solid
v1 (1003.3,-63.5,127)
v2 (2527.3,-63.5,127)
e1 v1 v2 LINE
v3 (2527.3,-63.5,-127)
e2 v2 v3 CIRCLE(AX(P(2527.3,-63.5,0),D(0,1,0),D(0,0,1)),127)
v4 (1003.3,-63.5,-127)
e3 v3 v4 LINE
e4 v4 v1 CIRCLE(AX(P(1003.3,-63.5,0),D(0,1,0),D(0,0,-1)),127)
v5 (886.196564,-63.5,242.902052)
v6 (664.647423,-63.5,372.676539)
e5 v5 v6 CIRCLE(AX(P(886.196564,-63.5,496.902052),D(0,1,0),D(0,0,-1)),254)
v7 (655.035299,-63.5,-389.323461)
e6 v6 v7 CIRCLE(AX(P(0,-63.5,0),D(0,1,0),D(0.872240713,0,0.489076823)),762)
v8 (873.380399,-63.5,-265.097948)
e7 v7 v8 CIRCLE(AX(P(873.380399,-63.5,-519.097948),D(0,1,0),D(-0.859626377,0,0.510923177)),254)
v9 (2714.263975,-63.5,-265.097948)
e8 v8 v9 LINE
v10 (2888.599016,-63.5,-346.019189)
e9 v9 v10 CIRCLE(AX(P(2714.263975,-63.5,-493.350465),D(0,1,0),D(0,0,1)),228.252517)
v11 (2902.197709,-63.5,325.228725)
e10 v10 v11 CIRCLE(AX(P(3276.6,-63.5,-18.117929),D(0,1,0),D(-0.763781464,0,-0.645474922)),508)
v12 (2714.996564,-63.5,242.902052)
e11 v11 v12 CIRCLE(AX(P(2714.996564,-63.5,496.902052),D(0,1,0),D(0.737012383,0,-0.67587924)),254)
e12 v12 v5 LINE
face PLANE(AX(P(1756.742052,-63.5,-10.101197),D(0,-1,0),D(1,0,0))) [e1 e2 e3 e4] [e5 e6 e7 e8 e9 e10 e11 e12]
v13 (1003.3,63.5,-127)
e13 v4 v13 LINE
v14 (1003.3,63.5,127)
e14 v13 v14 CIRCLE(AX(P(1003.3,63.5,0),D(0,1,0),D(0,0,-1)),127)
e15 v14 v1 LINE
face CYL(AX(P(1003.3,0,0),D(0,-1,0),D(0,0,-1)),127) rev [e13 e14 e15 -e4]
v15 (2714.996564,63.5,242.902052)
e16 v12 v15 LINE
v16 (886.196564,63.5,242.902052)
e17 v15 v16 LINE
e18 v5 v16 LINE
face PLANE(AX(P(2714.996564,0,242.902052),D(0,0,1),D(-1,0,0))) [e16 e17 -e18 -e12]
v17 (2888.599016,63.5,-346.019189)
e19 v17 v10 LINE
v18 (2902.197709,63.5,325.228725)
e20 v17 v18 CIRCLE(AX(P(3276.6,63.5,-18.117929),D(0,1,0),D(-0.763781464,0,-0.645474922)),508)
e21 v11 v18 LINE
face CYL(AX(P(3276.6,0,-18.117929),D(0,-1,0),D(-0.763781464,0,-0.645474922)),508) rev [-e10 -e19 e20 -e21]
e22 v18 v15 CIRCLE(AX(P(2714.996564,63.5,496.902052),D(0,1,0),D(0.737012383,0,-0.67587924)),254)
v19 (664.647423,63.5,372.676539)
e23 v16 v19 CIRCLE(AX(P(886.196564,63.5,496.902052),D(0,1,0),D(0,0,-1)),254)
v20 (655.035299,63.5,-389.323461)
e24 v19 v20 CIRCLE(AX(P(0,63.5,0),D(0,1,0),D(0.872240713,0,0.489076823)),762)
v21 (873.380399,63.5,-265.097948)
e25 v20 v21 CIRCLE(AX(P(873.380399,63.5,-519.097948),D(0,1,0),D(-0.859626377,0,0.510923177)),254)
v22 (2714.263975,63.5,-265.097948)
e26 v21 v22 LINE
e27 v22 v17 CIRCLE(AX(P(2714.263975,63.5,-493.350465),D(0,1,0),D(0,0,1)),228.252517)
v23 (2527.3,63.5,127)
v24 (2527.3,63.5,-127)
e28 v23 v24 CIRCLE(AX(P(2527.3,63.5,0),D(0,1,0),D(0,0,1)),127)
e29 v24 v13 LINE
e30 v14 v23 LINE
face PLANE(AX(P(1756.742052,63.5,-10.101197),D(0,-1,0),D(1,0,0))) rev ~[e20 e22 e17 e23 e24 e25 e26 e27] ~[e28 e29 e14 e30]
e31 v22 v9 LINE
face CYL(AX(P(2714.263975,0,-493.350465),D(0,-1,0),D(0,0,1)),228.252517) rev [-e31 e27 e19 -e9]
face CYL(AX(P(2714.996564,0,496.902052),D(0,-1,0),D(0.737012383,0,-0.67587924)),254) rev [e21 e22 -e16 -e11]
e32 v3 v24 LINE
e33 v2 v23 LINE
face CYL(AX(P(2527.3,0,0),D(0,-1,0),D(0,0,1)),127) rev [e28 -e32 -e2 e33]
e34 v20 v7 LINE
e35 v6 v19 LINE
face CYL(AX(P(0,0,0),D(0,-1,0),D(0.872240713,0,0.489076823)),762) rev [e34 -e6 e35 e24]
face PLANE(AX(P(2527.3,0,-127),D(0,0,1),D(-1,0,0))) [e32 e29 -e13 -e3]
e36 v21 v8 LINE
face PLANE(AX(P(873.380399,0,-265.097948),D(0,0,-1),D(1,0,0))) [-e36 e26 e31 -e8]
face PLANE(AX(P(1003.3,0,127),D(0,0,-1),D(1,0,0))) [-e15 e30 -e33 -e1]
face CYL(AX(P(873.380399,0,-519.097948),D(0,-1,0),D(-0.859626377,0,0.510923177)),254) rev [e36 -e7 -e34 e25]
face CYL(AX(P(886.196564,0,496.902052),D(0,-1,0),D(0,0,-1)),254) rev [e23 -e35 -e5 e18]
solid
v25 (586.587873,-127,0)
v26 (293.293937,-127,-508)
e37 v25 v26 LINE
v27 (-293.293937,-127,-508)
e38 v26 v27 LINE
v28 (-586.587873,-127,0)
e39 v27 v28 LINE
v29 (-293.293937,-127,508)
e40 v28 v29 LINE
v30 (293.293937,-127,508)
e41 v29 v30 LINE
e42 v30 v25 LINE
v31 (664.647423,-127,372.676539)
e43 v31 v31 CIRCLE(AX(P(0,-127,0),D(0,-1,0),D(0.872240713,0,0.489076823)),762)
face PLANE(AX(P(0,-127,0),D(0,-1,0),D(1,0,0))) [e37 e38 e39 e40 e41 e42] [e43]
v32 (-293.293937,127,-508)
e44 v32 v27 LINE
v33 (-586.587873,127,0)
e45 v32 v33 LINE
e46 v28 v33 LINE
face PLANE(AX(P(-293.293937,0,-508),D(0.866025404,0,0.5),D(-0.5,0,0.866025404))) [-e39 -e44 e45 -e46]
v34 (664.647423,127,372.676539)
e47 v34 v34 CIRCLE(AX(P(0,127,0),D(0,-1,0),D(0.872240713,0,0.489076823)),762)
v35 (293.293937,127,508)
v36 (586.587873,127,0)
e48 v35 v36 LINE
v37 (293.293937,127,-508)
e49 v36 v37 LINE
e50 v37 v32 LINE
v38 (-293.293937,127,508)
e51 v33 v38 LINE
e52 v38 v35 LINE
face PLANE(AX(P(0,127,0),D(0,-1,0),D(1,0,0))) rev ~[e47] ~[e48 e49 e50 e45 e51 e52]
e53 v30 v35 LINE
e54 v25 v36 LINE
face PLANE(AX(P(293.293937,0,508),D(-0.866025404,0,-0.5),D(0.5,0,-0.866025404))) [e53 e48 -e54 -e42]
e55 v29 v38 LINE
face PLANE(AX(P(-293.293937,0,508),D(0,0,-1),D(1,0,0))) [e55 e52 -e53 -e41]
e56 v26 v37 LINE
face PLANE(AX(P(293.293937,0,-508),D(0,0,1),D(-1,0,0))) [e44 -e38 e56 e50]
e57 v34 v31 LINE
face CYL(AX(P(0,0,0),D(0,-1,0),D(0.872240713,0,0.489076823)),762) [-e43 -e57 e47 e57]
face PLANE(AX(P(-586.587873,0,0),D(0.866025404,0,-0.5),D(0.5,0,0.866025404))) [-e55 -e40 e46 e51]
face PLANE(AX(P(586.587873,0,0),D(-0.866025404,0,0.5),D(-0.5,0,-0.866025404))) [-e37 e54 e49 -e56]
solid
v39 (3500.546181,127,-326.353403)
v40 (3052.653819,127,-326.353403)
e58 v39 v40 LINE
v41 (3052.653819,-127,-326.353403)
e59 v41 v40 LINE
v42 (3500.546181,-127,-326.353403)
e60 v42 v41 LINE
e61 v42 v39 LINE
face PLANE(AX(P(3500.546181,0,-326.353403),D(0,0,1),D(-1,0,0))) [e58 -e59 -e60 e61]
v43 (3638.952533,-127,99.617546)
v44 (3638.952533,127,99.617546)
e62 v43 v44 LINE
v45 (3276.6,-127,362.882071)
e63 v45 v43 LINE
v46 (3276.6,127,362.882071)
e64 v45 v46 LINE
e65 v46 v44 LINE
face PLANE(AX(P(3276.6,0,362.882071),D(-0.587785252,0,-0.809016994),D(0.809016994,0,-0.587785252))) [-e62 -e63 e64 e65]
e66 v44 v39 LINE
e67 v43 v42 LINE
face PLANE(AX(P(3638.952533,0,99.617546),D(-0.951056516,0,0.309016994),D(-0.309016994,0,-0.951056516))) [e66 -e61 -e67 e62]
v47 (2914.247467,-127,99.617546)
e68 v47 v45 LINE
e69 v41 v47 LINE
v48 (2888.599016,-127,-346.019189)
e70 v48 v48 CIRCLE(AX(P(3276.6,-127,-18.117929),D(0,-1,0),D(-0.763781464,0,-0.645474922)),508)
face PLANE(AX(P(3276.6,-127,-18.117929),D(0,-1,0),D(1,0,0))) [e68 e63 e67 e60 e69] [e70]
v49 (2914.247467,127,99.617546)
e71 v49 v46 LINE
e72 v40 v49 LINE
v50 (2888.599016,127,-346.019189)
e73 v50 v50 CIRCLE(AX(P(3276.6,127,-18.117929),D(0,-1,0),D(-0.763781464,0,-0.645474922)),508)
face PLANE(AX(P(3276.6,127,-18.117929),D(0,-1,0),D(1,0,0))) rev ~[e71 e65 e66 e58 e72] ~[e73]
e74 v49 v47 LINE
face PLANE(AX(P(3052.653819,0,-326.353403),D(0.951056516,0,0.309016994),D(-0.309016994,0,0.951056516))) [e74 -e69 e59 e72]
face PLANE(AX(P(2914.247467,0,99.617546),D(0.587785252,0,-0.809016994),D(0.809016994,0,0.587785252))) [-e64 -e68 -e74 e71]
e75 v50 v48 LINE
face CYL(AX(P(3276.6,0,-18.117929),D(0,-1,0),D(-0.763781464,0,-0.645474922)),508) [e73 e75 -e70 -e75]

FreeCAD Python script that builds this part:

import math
import FreeCAD as App
import Part
import Sketcher
Q = App.Units.Quantity


def add_polygon(sketch, points):
    """Adds a closed chain of lines whose ends are joined by coincident constraints."""
    first, n = sketch.GeometryCount, len(points)
    for a, b in zip(points, points[1:] + points[:1]):
        sketch.addGeometry(Part.LineSegment(App.Vector(*a, 0), App.Vector(*b, 0)), False)
    for i in range(n):
        sketch.addConstraint(Sketcher.Constraint("Coincident", first + i, 2, first + (i + 1) % n, 1))

doc = App.newDocument("Part")
params = doc.addObject("Spreadsheet::Sheet", "Params")
for row, (alias, value) in enumerate([
    ("sketch1_diameter", "60 in"),
    ("pad1_length", "10 in"),
    ("sketch2_diameter", "40 in"),
    ("pad2_length", "10 in"),
    ("sketch3_radius", "30 in"),
    ("sketch3_radius2", "10 in"),
    ("sketch3_radius3", "20 in"),
    ("sketch3_radius4", "5 in"),
    ("sketch3_width", "72 in"),
    ("pad3_length", "5 in"),
], start=1):
    params.set(f"A{row}", alias)
    params.set(f"B{row}", "=" + value)
    params.setAlias(f"B{row}", alias)

body = doc.addObject("PartDesign::Body", "Body")

sketch1 = body.newObject("Sketcher::SketchObject", "Sketch")
sketch1.AttachmentSupport = (doc.getObject("XZ_Plane"), [""])
sketch1.MapMode = "FlatFace"
sketch1.addGeometry(Part.Circle(App.Vector(0, 0, 0), App.Vector(0, 0, 1), 762), False)
add_polygon(sketch1, [(293, -508), (-293, -508), (-587, 0), (-293, 508), (293, 508), (587, 0)])
sketch1.addConstraint(Sketcher.Constraint("Horizontal", 1))
sketch1.addConstraint(Sketcher.Constraint("Horizontal", 4))
sketch1.addConstraint(Sketcher.Constraint("Coincident", 0, 3, -1, 1))
sketch1.addConstraint(Sketcher.Constraint("Symmetric", 1, 2, 4, 2, -1, 1))
sketch1.addConstraint(Sketcher.Constraint("Symmetric", 2, 2, 5, 2, -1, 1))
sketch1.addConstraint(Sketcher.Constraint("PointOnObject", 2, 2, -1))
sketch1.addConstraint(Sketcher.Constraint("Parallel", 3, 6))
sketch1.addConstraint(Sketcher.Constraint("Vertical", 1, 2, 3, 2))
sketch1.addConstraint(Sketcher.Constraint("Diameter", 0, Q("60 in")))
sketch1.addConstraint(Sketcher.Constraint("DistanceY", 1, 2, -1, 1, Q("20 in")))
sketch1.addConstraint(Sketcher.Constraint("Angle", 2, Q("120 deg")))
sketch1.addConstraint(Sketcher.Constraint("DistanceX", 1, 2, 1, 1, 586.587873))
sketch1.setExpression("Constraints[14]", "Params.sketch1_diameter")
pad1 = body.newObject("PartDesign::Pad", "Pad")
pad1.Profile = sketch1
pad1.setExpression("Length", "Params.pad1_length")
pad1.Midplane = True
body2 = doc.addObject("PartDesign::Body", "Body001")

sketch2 = body2.newObject("Sketcher::SketchObject", "Sketch001")
sketch2.AttachmentSupport = (doc.getObject("XZ_Plane001"), [""])
sketch2.MapMode = "FlatFace"
sketch2.addGeometry(Part.Circle(App.Vector(3277, -18, 0), App.Vector(0, 0, 1), 508), False)
add_polygon(sketch2, [(3053, -326), (2914, 100), (3277, 363), (3639, 100), (3501, -326)])
sketch2.addConstraint(Sketcher.Constraint("Horizontal", 5))
sketch2.addConstraint(Sketcher.Constraint("Horizontal", 1, 2, 3, 2))
sketch2.addConstraint(Sketcher.Constraint("Vertical", 0, 3, 2, 2))
sketch2.addConstraint(Sketcher.Constraint("Equal", 1, 2))
sketch2.addConstraint(Sketcher.Constraint("Equal", 2, 3))
sketch2.addConstraint(Sketcher.Constraint("Equal", 3, 4))
sketch2.addConstraint(Sketcher.Constraint("Diameter", 0, Q("40 in")))
sketch2.addConstraint(Sketcher.Constraint("DistanceX", -1, 1, 0, 3, Q("129 in")))
sketch2.addConstraint(Sketcher.Constraint("Angle", 1, Q("108 deg")))
sketch2.addConstraint(Sketcher.Constraint("Angle", 2, Q("36 deg")))
sketch2.addConstraint(Sketcher.Constraint("DistanceY", 0, 3, 2, 2, Q("15 in")))
sketch2.addConstraint(Sketcher.Constraint("DistanceX", 5, 2, 5, 1, 447.892362))
sketch2.addConstraint(Sketcher.Constraint("DistanceY", 0, 3, -1, 1, 18.117929))
sketch2.setExpression("Constraints[11]", "Params.sketch2_diameter")
pad2 = body2.newObject("PartDesign::Pad", "Pad001")
pad2.Profile = sketch2
pad2.setExpression("Length", "Params.pad2_length")
pad2.Midplane = True
body3 = doc.addObject("PartDesign::Body", "Body002")

sketch3 = body3.newObject("Sketcher::SketchObject", "Sketch002")
sketch3.AttachmentSupport = (doc.getObject("XZ_Plane002"), [""])
sketch3.MapMode = "FlatFace"
sketch3.addGeometry(Part.ArcOfCircle(Part.Circle(App.Vector(0, 0, 0), App.Vector(0, 0, 1), 762), math.radians(-31), math.radians(29)), False)
sketch3.addGeometry(Part.ArcOfCircle(Part.Circle(App.Vector(873, -519, 0), App.Vector(0, 0, 1), 254), math.radians(90), math.radians(149)), False)
sketch3.addGeometry(Part.LineSegment(App.Vector(873, -265, 0), App.Vector(2714, -265, 0)), False)
sketch3.addGeometry(Part.ArcOfCircle(Part.Circle(App.Vector(2714, -493, 0), App.Vector(0, 0, 1), 228), math.radians(40), math.radians(90)), False)
sketch3.addGeometry(Part.ArcOfCircle(Part.Circle(App.Vector(3277, -18, 0), App.Vector(0, 0, 1), 508), math.radians(137), math.radians(220)), False)
sketch3.addGeometry(Part.ArcOfCircle(Part.Circle(App.Vector(2715, 497, 0), App.Vector(0, 0, 1), 254), math.radians(-90), math.radians(-43)), False)
sketch3.addGeometry(Part.LineSegment(App.Vector(2715, 243, 0), App.Vector(886, 243, 0)), False)
sketch3.addGeometry(Part.ArcOfCircle(Part.Circle(App.Vector(886, 497, 0), App.Vector(0, 0, 1), 254), math.radians(-151), math.radians(-90)), False)
sketch3.addGeometry(Part.ArcOfCircle(Part.Circle(App.Vector(1003, 0, 0), App.Vector(0, 0, 1), 127), math.radians(90), math.radians(270)), False)
sketch3.addGeometry(Part.LineSegment(App.Vector(1003, 127, 0), App.Vector(2527, 127, 0)), False)
sketch3.addGeometry(Part.ArcOfCircle(Part.Circle(App.Vector(2527, 0, 0), App.Vector(0, 0, 1), 127), math.radians(-90), math.radians(90)), False)
sketch3.addGeometry(Part.LineSegment(App.Vector(2527, -127, 0), App.Vector(1003, -127, 0)), False)
sketch3.addConstraint(Sketcher.Constraint("Tangent", 0, 1, 1, 2))
sketch3.addConstraint(Sketcher.Constraint("Tangent", 1, 1, 2, 1))
sketch3.addConstraint(Sketcher.Constraint("Tangent", 2, 2, 3, 2))
sketch3.addConstraint(Sketcher.Constraint("Tangent", 3, 1, 4, 2))
sketch3.addConstraint(Sketcher.Constraint("Tangent", 4, 1, 5, 2))
sketch3.addConstraint(Sketcher.Constraint("Tangent", 5, 1, 6, 1))
sketch3.addConstraint(Sketcher.Constraint("Tangent", 6, 2, 7, 2))
sketch3.addConstraint(Sketcher.Constraint("Tangent", 7, 1, 0, 2))
sketch3.addConstraint(Sketcher.Constraint("Tangent", 8, 1, 9, 1))
sketch3.addConstraint(Sketcher.Constraint("Tangent", 9, 2, 10, 2))
sketch3.addConstraint(Sketcher.Constraint("Tangent", 10, 1, 11, 1))
sketch3.addConstraint(Sketcher.Constraint("Tangent", 11, 2, 8, 2))
sketch3.addConstraint(Sketcher.Constraint("Horizontal", 2))
sketch3.addConstraint(Sketcher.Constraint("Horizontal", 6))
sketch3.addConstraint(Sketcher.Constraint("Horizontal", 9))
sketch3.addConstraint(Sketcher.Constraint("Horizontal", 11))
sketch3.addConstraint(Sketcher.Constraint("Coincident", 0, 3, -1, 1))
sketch3.addConstraint(Sketcher.Constraint("Equal", 1, 5))
sketch3.addConstraint(Sketcher.Constraint("Equal", 5, 7))
sketch3.addConstraint(Sketcher.Constraint("PointOnObject", 8, 3, -1))
sketch3.addConstraint(Sketcher.Constraint("Radius", 0, Q("30 in")))
sketch3.addConstraint(Sketcher.Constraint("Radius", 1, Q("10 in")))
sketch3.addConstraint(Sketcher.Constraint("Radius", 4, Q("20 in")))
sketch3.addConstraint(Sketcher.Constraint("Radius", 8, Q("5 in")))
sketch3.addConstraint(Sketcher.Constraint("DistanceX", 6, 2, 6, 1, Q("72 in")))
sketch3.addConstraint(Sketcher.Constraint("DistanceX", 9, 1, 9, 2, Q("60 in")))
sketch3.addConstraint(Sketcher.Constraint("DistanceX", -1, 1, 4, 3, Q("129 in")))
sketch3.addConstraint(Sketcher.Constraint("DistanceY", 1, 3, 5, 3, Q("40 in")))
sketch3.addConstraint(Sketcher.Constraint("DistanceX", -1, 1, 8, 3, Q("39.5 in")))
sketch3.addConstraint(Sketcher.Constraint("Radius", 3, 228.252517))
sketch3.addConstraint(Sketcher.Constraint("DistanceX", -1, 1, 1, 3, 873.380399))
sketch3.setExpression("Constraints[20]", "Params.sketch3_radius")
sketch3.setExpression("Constraints[21]", "Params.sketch3_radius2")
sketch3.setExpression("Constraints[22]", "Params.sketch3_radius3")
sketch3.setExpression("Constraints[23]", "Params.sketch3_radius4")
sketch3.setExpression("Constraints[24]", "Params.sketch3_width")
pad3 = body3.newObject("PartDesign::Pad", "Pad002")
pad3.Profile = sketch3
pad3.setExpression("Length", "Params.pad3_length")
pad3.Midplane = True

doc.recompute()
